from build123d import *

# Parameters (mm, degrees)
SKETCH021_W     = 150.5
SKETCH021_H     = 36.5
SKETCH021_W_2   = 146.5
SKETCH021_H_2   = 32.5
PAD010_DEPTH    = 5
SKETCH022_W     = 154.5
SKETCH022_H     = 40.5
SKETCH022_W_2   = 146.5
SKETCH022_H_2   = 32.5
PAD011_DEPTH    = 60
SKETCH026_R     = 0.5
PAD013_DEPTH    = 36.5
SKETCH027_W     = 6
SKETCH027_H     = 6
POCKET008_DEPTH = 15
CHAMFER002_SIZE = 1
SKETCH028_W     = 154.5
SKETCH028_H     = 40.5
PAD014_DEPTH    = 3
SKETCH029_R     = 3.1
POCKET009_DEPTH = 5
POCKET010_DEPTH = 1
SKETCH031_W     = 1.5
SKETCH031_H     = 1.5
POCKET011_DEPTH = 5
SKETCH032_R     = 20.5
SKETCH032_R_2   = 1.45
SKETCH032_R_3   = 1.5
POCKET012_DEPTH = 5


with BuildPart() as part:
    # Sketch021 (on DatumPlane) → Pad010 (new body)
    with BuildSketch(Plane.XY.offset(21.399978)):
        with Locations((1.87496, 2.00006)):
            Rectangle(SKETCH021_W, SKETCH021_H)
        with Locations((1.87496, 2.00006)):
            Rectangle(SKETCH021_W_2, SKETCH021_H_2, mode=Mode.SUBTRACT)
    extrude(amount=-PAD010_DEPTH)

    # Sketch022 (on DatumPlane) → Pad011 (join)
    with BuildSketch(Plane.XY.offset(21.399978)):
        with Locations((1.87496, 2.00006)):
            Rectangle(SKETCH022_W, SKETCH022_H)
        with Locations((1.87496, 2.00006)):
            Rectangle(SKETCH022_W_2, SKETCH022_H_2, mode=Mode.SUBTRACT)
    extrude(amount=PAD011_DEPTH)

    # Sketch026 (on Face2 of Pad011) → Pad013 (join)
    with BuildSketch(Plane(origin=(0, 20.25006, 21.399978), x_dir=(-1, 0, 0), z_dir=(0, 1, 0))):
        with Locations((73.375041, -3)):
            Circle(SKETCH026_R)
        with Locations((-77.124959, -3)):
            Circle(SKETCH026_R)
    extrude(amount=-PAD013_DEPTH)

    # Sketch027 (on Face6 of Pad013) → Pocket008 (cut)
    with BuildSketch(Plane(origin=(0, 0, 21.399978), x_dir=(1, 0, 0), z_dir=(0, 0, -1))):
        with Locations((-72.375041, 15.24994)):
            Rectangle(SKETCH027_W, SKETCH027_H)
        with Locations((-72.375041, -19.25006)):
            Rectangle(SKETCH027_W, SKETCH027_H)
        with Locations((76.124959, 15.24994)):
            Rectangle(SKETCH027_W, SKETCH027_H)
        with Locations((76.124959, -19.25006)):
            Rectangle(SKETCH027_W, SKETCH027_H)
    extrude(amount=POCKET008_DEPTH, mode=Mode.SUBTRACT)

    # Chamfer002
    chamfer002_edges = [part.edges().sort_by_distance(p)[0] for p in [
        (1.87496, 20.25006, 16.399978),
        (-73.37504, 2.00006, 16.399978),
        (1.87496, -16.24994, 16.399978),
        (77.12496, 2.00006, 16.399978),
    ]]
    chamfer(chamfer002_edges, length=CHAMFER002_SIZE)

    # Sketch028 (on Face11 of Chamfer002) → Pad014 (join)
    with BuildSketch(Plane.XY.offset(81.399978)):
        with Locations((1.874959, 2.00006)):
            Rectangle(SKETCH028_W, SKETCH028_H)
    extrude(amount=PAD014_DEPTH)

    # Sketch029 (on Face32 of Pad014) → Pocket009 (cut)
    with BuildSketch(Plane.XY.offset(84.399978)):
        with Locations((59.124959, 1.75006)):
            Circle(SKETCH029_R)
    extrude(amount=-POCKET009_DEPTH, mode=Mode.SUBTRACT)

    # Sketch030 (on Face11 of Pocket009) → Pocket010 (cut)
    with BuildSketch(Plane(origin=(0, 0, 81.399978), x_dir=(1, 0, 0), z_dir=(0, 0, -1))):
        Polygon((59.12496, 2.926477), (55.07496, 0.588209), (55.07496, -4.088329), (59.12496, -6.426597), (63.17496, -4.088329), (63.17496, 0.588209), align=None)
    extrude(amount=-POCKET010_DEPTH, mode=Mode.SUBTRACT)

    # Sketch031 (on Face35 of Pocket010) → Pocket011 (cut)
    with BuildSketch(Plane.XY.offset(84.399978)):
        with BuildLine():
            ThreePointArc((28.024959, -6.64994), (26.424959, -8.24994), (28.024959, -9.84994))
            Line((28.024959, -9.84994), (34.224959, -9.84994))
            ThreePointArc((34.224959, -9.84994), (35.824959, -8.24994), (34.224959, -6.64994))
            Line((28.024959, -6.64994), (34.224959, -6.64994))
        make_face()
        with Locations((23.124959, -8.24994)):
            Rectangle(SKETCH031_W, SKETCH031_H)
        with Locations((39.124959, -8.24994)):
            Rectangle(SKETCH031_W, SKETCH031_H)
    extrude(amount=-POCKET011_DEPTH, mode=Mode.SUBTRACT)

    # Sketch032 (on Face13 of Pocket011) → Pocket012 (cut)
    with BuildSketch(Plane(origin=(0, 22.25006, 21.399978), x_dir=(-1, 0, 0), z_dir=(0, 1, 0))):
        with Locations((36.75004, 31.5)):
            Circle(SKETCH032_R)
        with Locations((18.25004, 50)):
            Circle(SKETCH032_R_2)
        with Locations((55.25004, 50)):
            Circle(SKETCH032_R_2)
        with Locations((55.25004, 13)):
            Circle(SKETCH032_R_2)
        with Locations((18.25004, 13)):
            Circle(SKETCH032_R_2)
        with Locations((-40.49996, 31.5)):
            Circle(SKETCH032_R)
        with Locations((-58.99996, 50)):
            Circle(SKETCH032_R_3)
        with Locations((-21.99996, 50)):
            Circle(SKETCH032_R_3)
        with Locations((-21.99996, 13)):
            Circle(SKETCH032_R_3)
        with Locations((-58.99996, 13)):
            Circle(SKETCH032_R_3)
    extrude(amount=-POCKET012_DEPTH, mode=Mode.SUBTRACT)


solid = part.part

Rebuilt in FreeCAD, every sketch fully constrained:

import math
import FreeCAD as App
import Part
import Sketcher
Q = App.Units.Quantity


def edges_at(feature, points):
    """Names of the edges that pass closest to the given points."""
    edges = feature.Shape.Edges
    near = lambda p: min(range(len(edges)), key=lambda i: edges[i].distToShape(Part.Vertex(*p))[0])
    return sorted({f"Edge{near(p) + 1}" for p in points})


def add_polygon(sketch, points):
    """Adds a closed chain of lines whose ends are joined by coincident constraints."""
    first, n = sketch.GeometryCount, len(points)
    for a, b in zip(points, points[1:] + points[:1]):
        sketch.addGeometry(Part.LineSegment(App.Vector(*a, 0), App.Vector(*b, 0)), False)
    for i in range(n):
        sketch.addConstraint(Sketcher.Constraint("Coincident", first + i, 2, first + (i + 1) % n, 1))

doc = App.newDocument("Part")
body = doc.addObject("PartDesign::Body", "Body")

# Sketch on XY plane
sketch1 = body.newObject("Sketcher::SketchObject", "Sketch")
sketch1.AttachmentSupport = (doc.getObject("XY_Plane"), [""])
sketch1.MapMode = "FlatFace"
sketch1.AttachmentOffset = App.Placement(App.Vector(0, 0, 21.399978), App.Rotation())
add_polygon(sketch1, [(-73, 20), (-73, -16), (77, -16), (77, 20)])  # lines 0-3
add_polygon(sketch1, [(75, -14), (-71, -14), (-71, 18), (75, 18)])  # lines 4-7
sketch1.addConstraint(Sketcher.Constraint("Vertical", 0))
sketch1.addConstraint(Sketcher.Constraint("Horizontal", 1))
sketch1.addConstraint(Sketcher.Constraint("Vertical", 2))
sketch1.addConstraint(Sketcher.Constraint("Horizontal", 3))
sketch1.addConstraint(Sketcher.Constraint("Horizontal", 4))
sketch1.addConstraint(Sketcher.Constraint("Vertical", 5))
sketch1.addConstraint(Sketcher.Constraint("Horizontal", 6))
sketch1.addConstraint(Sketcher.Constraint("Vertical", 7))
sketch1.addConstraint(Sketcher.Constraint("DistanceX", 1, 1, 1, 2, 150.5))
sketch1.addConstraint(Sketcher.Constraint("DistanceX", 4, 2, 4, 1, 146.5))
sketch1.addConstraint(Sketcher.Constraint("DistanceY", 0, 2, 0, 1, 36.5))
sketch1.addConstraint(Sketcher.Constraint("DistanceY", 5, 1, 5, 2, 32.5))
sketch1.addConstraint(Sketcher.Constraint("DistanceX", 0, 2, 4, 2, 2.0))
sketch1.addConstraint(Sketcher.Constraint("DistanceY", 0, 2, 4, 2, 2.0))
sketch1.addConstraint(Sketcher.Constraint("DistanceX", 0, 2, -1, 1, 73.37504))
sketch1.addConstraint(Sketcher.Constraint("DistanceY", 0, 2, -1, 1, 16.24994))
pad1 = body.newObject("PartDesign::Pad", "Pad")
pad1.Profile = sketch1
pad1.Length = 5
pad1.Reversed = True

# Sketch on XY plane
sketch2 = body.newObject("Sketcher::SketchObject", "Sketch001")
sketch2.AttachmentSupport = (doc.getObject("XY_Plane"), [""])
sketch2.MapMode = "FlatFace"
sketch2.AttachmentOffset = App.Placement(App.Vector(0, 0, 21.399978), App.Rotation())
add_polygon(sketch2, [(-75, 22), (-75, -18), (79, -18), (79, 22)])  # lines 0-3
add_polygon(sketch2, [(75, -14), (-71, -14), (-71, 18), (75, 18)])  # lines 4-7
sketch2.addConstraint(Sketcher.Constraint("Vertical", 0))
sketch2.addConstraint(Sketcher.Constraint("Horizontal", 1))
sketch2.addConstraint(Sketcher.Constraint("Vertical", 2))
sketch2.addConstraint(Sketcher.Constraint("Horizontal", 3))
sketch2.addConstraint(Sketcher.Constraint("Horizontal", 4))
sketch2.addConstraint(Sketcher.Constraint("Vertical", 5))
sketch2.addConstraint(Sketcher.Constraint("Horizontal", 6))
sketch2.addConstraint(Sketcher.Constraint("Vertical", 7))
sketch2.addConstraint(Sketcher.Constraint("DistanceX", 1, 1, 1, 2, 154.5))
sketch2.addConstraint(Sketcher.Constraint("DistanceX", 4, 2, 4, 1, 146.5))
sketch2.addConstraint(Sketcher.Constraint("DistanceY", 0, 2, 0, 1, 40.5))
sketch2.addConstraint(Sketcher.Constraint("DistanceY", 5, 1, 5, 2, 32.5))
sketch2.addConstraint(Sketcher.Constraint("DistanceX", 0, 2, 4, 2, 4.0))
sketch2.addConstraint(Sketcher.Constraint("DistanceY", 0, 2, 4, 2, 4.0))
sketch2.addConstraint(Sketcher.Constraint("DistanceX", 0, 2, -1, 1, 75.37504))
sketch2.addConstraint(Sketcher.Constraint("DistanceY", 0, 2, -1, 1, 18.24994))
pad2 = body.newObject("PartDesign::Pad", "Pad001")
pad2.Profile = sketch2
pad2.Length = 60

# Sketch on XZ plane
sketch3 = body.newObject("Sketcher::SketchObject", "Sketch002")
sketch3.AttachmentSupport = (doc.getObject("XZ_Plane"), [""])
sketch3.MapMode = "FlatFace"
sketch3.AttachmentOffset = App.Placement(App.Vector(0, 0, -20.25006), App.Rotation())
sketch3.addGeometry(Part.Circle(App.Vector(-73.375041, 18.399978, 0), App.Vector(0, 0, 1), 0.5), False)
sketch3.addGeometry(Part.Circle(App.Vector(77.124959, 18.399978, 0), App.Vector(0, 0, 1), 0.5), False)
sketch3.addConstraint(Sketcher.Constraint("Equal", 0, 1))
sketch3.addConstraint(Sketcher.Constraint("Horizontal", 0, 3, 1, 3))
sketch3.addConstraint(Sketcher.Constraint("Diameter", 0, 1.0))
sketch3.addConstraint(Sketcher.Constraint("DistanceX", 0, 3, 1, 3, 150.5))
sketch3.addConstraint(Sketcher.Constraint("DistanceX", 0, 3, -1, 1, 73.375041))
sketch3.addConstraint(Sketcher.Constraint("DistanceY", -1, 1, 0, 3, 18.399978))
pad3 = body.newObject("PartDesign::Pad", "Pad002")
pad3.Profile = sketch3
pad3.Length = 36.5

# Sketch on XY plane
sketch4 = body.newObject("Sketcher::SketchObject", "Sketch003")
sketch4.AttachmentSupport = (doc.getObject("XY_Plane"), [""])
sketch4.MapMode = "FlatFace"
sketch4.AttachmentOffset = App.Placement(App.Vector(0, 0, 21.399978), App.Rotation())
add_polygon(sketch4, [(-75, -18), (-75, -12), (-69, -12), (-69, -18)])  # lines 0-3
add_polygon(sketch4, [(-75, 16), (-75, 22), (-69, 22), (-69, 16)])  # lines 4-7
add_polygon(sketch4, [(73, -18), (73, -12), (79, -12), (79, -18)])  # lines 8-11
add_polygon(sketch4, [(73, 16), (73, 22), (79, 22), (79, 16)])  # lines 12-15
sketch4.addConstraint(Sketcher.Constraint("Vertical", 0))
sketch4.addConstraint(Sketcher.Constraint("Horizontal", 1))
sketch4.addConstraint(Sketcher.Constraint("Vertical", 2))
sketch4.addConstraint(Sketcher.Constraint("Horizontal", 3))
sketch4.addConstraint(Sketcher.Constraint("Vertical", 4))
sketch4.addConstraint(Sketcher.Constraint("Horizontal", 5))
sketch4.addConstraint(Sketcher.Constraint("Vertical", 6))
sketch4.addConstraint(Sketcher.Constraint("Horizontal", 7))
sketch4.addConstraint(Sketcher.Constraint("Vertical", 8))
sketch4.addConstraint(Sketcher.Constraint("Horizontal", 9))
sketch4.addConstraint(Sketcher.Constraint("Vertical", 10))
sketch4.addConstraint(Sketcher.Constraint("Horizontal", 11))
sketch4.addConstraint(Sketcher.Constraint("Vertical", 12))
sketch4.addConstraint(Sketcher.Constraint("Horizontal", 13))
sketch4.addConstraint(Sketcher.Constraint("Vertical", 14))
sketch4.addConstraint(Sketcher.Constraint("Horizontal", 15))
sketch4.addConstraint(Sketcher.Constraint("Horizontal", 1, 2, 8, 2))
sketch4.addConstraint(Sketcher.Constraint("Horizontal", 3, 2, 10, 2))
sketch4.addConstraint(Sketcher.Constraint("Horizontal", 5, 2, 12, 2))
sketch4.addConstraint(Sketcher.Constraint("Horizontal", 7, 2, 14, 2))
sketch4.addConstraint(Sketcher.Constraint("Vertical", 3, 2, 4, 2))
sketch4.addConstraint(Sketcher.Constraint("Vertical", 2, 2, 5, 2))
sketch4.addConstraint(Sketcher.Constraint("Vertical", 11, 2, 12, 2))
sketch4.addConstraint(Sketcher.Constraint("Vertical", 10, 2, 13, 2))
sketch4.addConstraint(Sketcher.Constraint("Equal", 7, 9))
sketch4.addConstraint(Sketcher.Constraint("Equal", 15, 0))
sketch4.addConstraint(Sketcher.Constraint("Equal", 2, 4))
sketch4.addConstraint(Sketcher.Constraint("DistanceX", 1, 1, 1, 2, 6.0))
sketch4.addConstraint(Sketcher.Constraint("DistanceY", 0, 2, 4, 2, 34.5))
sketch4.addConstraint(Sketcher.Constraint("DistanceX", 1, 2, 8, 2, 142.5))
sketch4.addConstraint(Sketcher.Constraint("DistanceX", 0, 2, -1, 1, 75.375041))
sketch4.addConstraint(Sketcher.Constraint("DistanceY", 0, 2, -1, 1, 12.24994))
pocket1 = body.newObject("PartDesign::Pocket", "Pocket")
pocket1.Profile = sketch4
pocket1.Length = 15
doc.recompute()

chamfer = body.newObject("PartDesign::Chamfer", "Chamfer")
chamfer.Base = (pocket1, edges_at(pocket1, [
    (1.875, 20.25, 16.4),
    (-73.375, 2, 16.4),
    (1.875, -16.25, 16.4),
    (77.125, 2, 16.4),
]))
chamfer.Size = 1

# Sketch on XY plane
sketch5 = body.newObject("Sketcher::SketchObject", "Sketch004")
sketch5.AttachmentSupport = (doc.getObject("XY_Plane"), [""])
sketch5.MapMode = "FlatFace"
sketch5.AttachmentOffset = App.Placement(App.Vector(0, 0, 81.399978), App.Rotation())
add_polygon(sketch5, [(-75, 22), (-75, -18), (79, -18), (79, 22)])  # lines 0-3
sketch5.addConstraint(Sketcher.Constraint("Vertical", 0))
sketch5.addConstraint(Sketcher.Constraint("Horizontal", 1))
sketch5.addConstraint(Sketcher.Constraint("Vertical", 2))
sketch5.addConstraint(Sketcher.Constraint("Horizontal", 3))
sketch5.addConstraint(Sketcher.Constraint("DistanceX", 1, 1, 1, 2, 154.5))
sketch5.addConstraint(Sketcher.Constraint("DistanceY", 0, 2, 0, 1, 40.5))
sketch5.addConstraint(Sketcher.Constraint("DistanceX", 0, 2, -1, 1, 75.375041))
sketch5.addConstraint(Sketcher.Constraint("DistanceY", 0, 2, -1, 1, 18.24994))
pad4 = body.newObject("PartDesign::Pad", "Pad003")
pad4.Profile = sketch5
pad4.Length = 3

# Sketch on XY plane
sketch6 = body.newObject("Sketcher::SketchObject", "Sketch005")
sketch6.AttachmentSupport = (doc.getObject("XY_Plane"), [""])
sketch6.MapMode = "FlatFace"
sketch6.AttachmentOffset = App.Placement(App.Vector(0, 0, 84.399978), App.Rotation())
sketch6.addGeometry(Part.Circle(App.Vector(59.1, 1.8, 0), App.Vector(0, 0, 1), 3.1), False)
sketch6.addConstraint(Sketcher.Constraint("Diameter", 0, 6.2))
sketch6.addConstraint(Sketcher.Constraint("DistanceX", -1, 1, 0, 3, 59.124959))
sketch6.addConstraint(Sketcher.Constraint("DistanceY", -1, 1, 0, 3, 1.75006))
pocket2 = body.newObject("PartDesign::Pocket", "Pocket001")
pocket2.Profile = sketch6
pocket2.Length = 5

# Sketch on XY plane
sketch7 = body.newObject("Sketcher::SketchObject", "Sketch006")
sketch7.AttachmentSupport = (doc.getObject("XY_Plane"), [""])
sketch7.MapMode = "FlatFace"
sketch7.AttachmentOffset = App.Placement(App.Vector(0, 0, 81.399978), App.Rotation())
add_polygon(sketch7, [(59.1, -2.9), (55.1, -0.6), (55.1, 4.1), (59.1, 6.4), (63.2, 4.1), (63.2, -0.6)])  # lines 0-5
sketch7.addConstraint(Sketcher.Constraint("Vertical", 1))
sketch7.addConstraint(Sketcher.Constraint("Vertical", 4))
sketch7.addConstraint(Sketcher.Constraint("Parallel", 0, 3))
sketch7.addConstraint(Sketcher.Constraint("Parallel", 2, 5))
sketch7.addConstraint(Sketcher.Constraint("Horizontal", 1, 2, 3, 2))
sketch7.addConstraint(Sketcher.Constraint("Horizontal", 0, 2, 4, 2))
sketch7.addConstraint(Sketcher.Constraint("Vertical", 2, 2, 5, 2))
sketch7.addConstraint(Sketcher.Constraint("Angle", 0, Q("150.000006 deg")))
sketch7.addConstraint(Sketcher.Constraint("DistanceX", 1, 2, 3, 2, 8.1))
sketch7.addConstraint(Sketcher.Constraint("DistanceY", 1, 1, 1, 2, 4.676538))
sketch7.addConstraint(Sketcher.Constraint("DistanceX", -1, 1, 0, 2, 55.07496))
sketch7.addConstraint(Sketcher.Constraint("DistanceY", 0, 2, -1, 1, 0.588209))
pocket3 = body.newObject("PartDesign::Pocket", "Pocket002")
pocket3.Profile = sketch7
pocket3.Length = 1
pocket3.Reversed = True

# Sketch on XY plane
sketch8 = body.newObject("Sketcher::SketchObject", "Sketch007")
sketch8.AttachmentSupport = (doc.getObject("XY_Plane"), [""])
sketch8.MapMode = "FlatFace"
sketch8.AttachmentOffset = App.Placement(App.Vector(0, 0, 84.399978), App.Rotation())
sketch8.addGeometry(Part.ArcOfCircle(Part.Circle(App.Vector(28, -8.2, 0), App.Vector(0, 0, 1), 1.6), math.radians(90), math.radians(270)), False)  # 0
sketch8.addGeometry(Part.LineSegment(App.Vector(28, -9.8, 0), App.Vector(34.2, -9.8, 0)), False)  # 1
sketch8.addGeometry(Part.ArcOfCircle(Part.Circle(App.Vector(34.2, -8.2, 0), App.Vector(0, 0, 1), 1.6), math.radians(-90), math.radians(90)), False)  # 2
sketch8.addGeometry(Part.LineSegment(App.Vector(34.2, -6.6, 0), App.Vector(28, -6.6, 0)), False)  # 3
add_polygon(sketch8, [(22.4, -7.5), (22.4, -9), (23.9, -9), (23.9, -7.5)])  # lines 4-7
add_polygon(sketch8, [(38.4, -7.5), (38.4, -9), (39.9, -9), (39.9, -7.5)])  # lines 8-11
sketch8.addConstraint(Sketcher.Constraint("Tangent", 0, 2, 1, 1))
sketch8.addConstraint(Sketcher.Constraint("Tangent", 1, 2, 2, 1))
sketch8.addConstraint(Sketcher.Constraint("Tangent", 2, 2, 3, 1))
sketch8.addConstraint(Sketcher.Constraint("Tangent", 3, 2, 0, 1))
sketch8.addConstraint(Sketcher.Constraint("Horizontal", 1))
sketch8.addConstraint(Sketcher.Constraint("Horizontal", 3))
sketch8.addConstraint(Sketcher.Constraint("Vertical", 4))
sketch8.addConstraint(Sketcher.Constraint("Horizontal", 5))
sketch8.addConstraint(Sketcher.Constraint("Vertical", 6))
sketch8.addConstraint(Sketcher.Constraint("Horizontal", 7))
sketch8.addConstraint(Sketcher.Constraint("Vertical", 8))
sketch8.addConstraint(Sketcher.Constraint("Horizontal", 9))
sketch8.addConstraint(Sketcher.Constraint("Vertical", 10))
sketch8.addConstraint(Sketcher.Constraint("Horizontal", 11))
sketch8.addConstraint(Sketcher.Constraint("Horizontal", 5, 2, 8, 2))
sketch8.addConstraint(Sketcher.Constraint("Horizontal", 7, 2, 10, 2))
sketch8.addConstraint(Sketcher.Constraint("Equal", 7, 9))
sketch8.addConstraint(Sketcher.Constraint("Equal", 11, 4))
sketch8.addConstraint(Sketcher.Constraint("Radius", 0, 1.6))
sketch8.addConstraint(Sketcher.Constraint("DistanceX", 1, 1, 1, 2, 6.2))
sketch8.addConstraint(Sketcher.Constraint("DistanceX", 5, 1, 5, 2, 1.5))
sketch8.addConstraint(Sketcher.Constraint("DistanceX", 4, 2, 0, 3, 5.65))
sketch8.addConstraint(Sketcher.Constraint("DistanceY", 4, 2, 0, 3, 0.75))
sketch8.addConstraint(Sketcher.Constraint("DistanceX", 2, 3, 8, 2, 4.15))
sketch8.addConstraint(Sketcher.Constraint("DistanceX", -1, 1, 0, 3, 28.024959))
sketch8.addConstraint(Sketcher.Constraint("DistanceY", 0, 3, -1, 1, 8.24994))
pocket4 = body.newObject("PartDesign::Pocket", "Pocket003")
pocket4.Profile = sketch8
pocket4.Length = 5

# Sketch on XZ plane
sketch9 = body.newObject("Sketcher::SketchObject", "Sketch008")
sketch9.AttachmentSupport = (doc.getObject("XZ_Plane"), [""])
sketch9.MapMode = "FlatFace"
sketch9.AttachmentOffset = App.Placement(App.Vector(0, 0, -22.25006), App.Rotation())
sketch9.addGeometry(Part.Circle(App.Vector(-36.75004, 52.899978, 0), App.Vector(0, 0, 1), 20.5), False)
sketch9.addGeometry(Part.Circle(App.Vector(-18.25004, 71.399978, 0), App.Vector(0, 0, 1), 1.45), False)
sketch9.addGeometry(Part.Circle(App.Vector(-55.25004, 71.399978, 0), App.Vector(0, 0, 1), 1.45), False)
sketch9.addGeometry(Part.Circle(App.Vector(-55.25004, 34.399978, 0), App.Vector(0, 0, 1), 1.45), False)
sketch9.addGeometry(Part.Circle(App.Vector(-18.25004, 34.399978, 0), App.Vector(0, 0, 1), 1.45), False)
sketch9.addGeometry(Part.Circle(App.Vector(40.49996, 52.899978, 0), App.Vector(0, 0, 1), 20.5), False)
sketch9.addGeometry(Part.Circle(App.Vector(58.99996, 71.399978, 0), App.Vector(0, 0, 1), 1.5), False)
sketch9.addGeometry(Part.Circle(App.Vector(21.99996, 71.399978, 0), App.Vector(0, 0, 1), 1.5), False)
sketch9.addGeometry(Part.Circle(App.Vector(21.99996, 34.399978, 0), App.Vector(0, 0, 1), 1.5), False)
sketch9.addGeometry(Part.Circle(App.Vector(58.99996, 34.399978, 0), App.Vector(0, 0, 1), 1.5), False)
sketch9.addConstraint(Sketcher.Constraint("Equal", 1, 2))
sketch9.addConstraint(Sketcher.Constraint("Equal", 2, 3))
sketch9.addConstraint(Sketcher.Constraint("Equal", 3, 4))
sketch9.addConstraint(Sketcher.Constraint("Equal", 0, 5))
sketch9.addConstraint(Sketcher.Constraint("Equal", 6, 7))
sketch9.addConstraint(Sketcher.Constraint("Equal", 7, 8))
sketch9.addConstraint(Sketcher.Constraint("Equal", 8, 9))
sketch9.addConstraint(Sketcher.Constraint("Horizontal", 1, 3, 2, 3))
sketch9.addConstraint(Sketcher.Constraint("Horizontal", 3, 3, 4, 3))
sketch9.addConstraint(Sketcher.Constraint("Horizontal", 0, 3, 5, 3))
sketch9.addConstraint(Sketcher.Constraint("Horizontal", 2, 3, 6, 3))
sketch9.addConstraint(Sketcher.Constraint("Horizontal", 6, 3, 7, 3))
sketch9.addConstraint(Sketcher.Constraint("Horizontal", 4, 3, 8, 3))
sketch9.addConstraint(Sketcher.Constraint("Horizontal", 8, 3, 9, 3))
sketch9.addConstraint(Sketcher.Constraint("Vertical", 2, 3, 3, 3))
sketch9.addConstraint(Sketcher.Constraint("Vertical", 1, 3, 4, 3))
sketch9.addConstraint(Sketcher.Constraint("Vertical", 7, 3, 8, 3))
sketch9.addConstraint(Sketcher.Constraint("Vertical", 6, 3, 9, 3))
sketch9.addConstraint(Sketcher.Constraint("Diameter", 0, 41.0))
sketch9.addConstraint(Sketcher.Constraint("Diameter", 6, 3.0))
sketch9.addConstraint(Sketcher.Constraint("Diameter", 1, 2.9))
sketch9.addConstraint(Sketcher.Constraint("DistanceX", 2, 3, 1, 3, 37.0))
sketch9.addConstraint(Sketcher.Constraint("DistanceY", 3, 3, 2, 3, 37.0))
sketch9.addConstraint(Sketcher.Constraint("DistanceX", 7, 3, 6, 3, 37.0))
sketch9.addConstraint(Sketcher.Constraint("DistanceX", 0, 3, 1, 3, 18.5))
sketch9.addConstraint(Sketcher.Constraint("DistanceY", 0, 3, 1, 3, 18.5))
sketch9.addConstraint(Sketcher.Constraint("DistanceX", 5, 3, 6, 3, 18.5))
sketch9.addConstraint(Sketcher.Constraint("DistanceX", 1, 3, 5, 3, 58.75))
sketch9.addConstraint(Sketcher.Constraint("DistanceX", 0, 3, -1, 1, 36.75004))
sketch9.addConstraint(Sketcher.Constraint("DistanceY", -1, 1, 1, 3, 71.399978))
pocket5 = body.newObject("PartDesign::Pocket", "Pocket004")
pocket5.Profile = sketch9
pocket5.Length = 5
pocket5.Reversed = True

doc.recompute()
